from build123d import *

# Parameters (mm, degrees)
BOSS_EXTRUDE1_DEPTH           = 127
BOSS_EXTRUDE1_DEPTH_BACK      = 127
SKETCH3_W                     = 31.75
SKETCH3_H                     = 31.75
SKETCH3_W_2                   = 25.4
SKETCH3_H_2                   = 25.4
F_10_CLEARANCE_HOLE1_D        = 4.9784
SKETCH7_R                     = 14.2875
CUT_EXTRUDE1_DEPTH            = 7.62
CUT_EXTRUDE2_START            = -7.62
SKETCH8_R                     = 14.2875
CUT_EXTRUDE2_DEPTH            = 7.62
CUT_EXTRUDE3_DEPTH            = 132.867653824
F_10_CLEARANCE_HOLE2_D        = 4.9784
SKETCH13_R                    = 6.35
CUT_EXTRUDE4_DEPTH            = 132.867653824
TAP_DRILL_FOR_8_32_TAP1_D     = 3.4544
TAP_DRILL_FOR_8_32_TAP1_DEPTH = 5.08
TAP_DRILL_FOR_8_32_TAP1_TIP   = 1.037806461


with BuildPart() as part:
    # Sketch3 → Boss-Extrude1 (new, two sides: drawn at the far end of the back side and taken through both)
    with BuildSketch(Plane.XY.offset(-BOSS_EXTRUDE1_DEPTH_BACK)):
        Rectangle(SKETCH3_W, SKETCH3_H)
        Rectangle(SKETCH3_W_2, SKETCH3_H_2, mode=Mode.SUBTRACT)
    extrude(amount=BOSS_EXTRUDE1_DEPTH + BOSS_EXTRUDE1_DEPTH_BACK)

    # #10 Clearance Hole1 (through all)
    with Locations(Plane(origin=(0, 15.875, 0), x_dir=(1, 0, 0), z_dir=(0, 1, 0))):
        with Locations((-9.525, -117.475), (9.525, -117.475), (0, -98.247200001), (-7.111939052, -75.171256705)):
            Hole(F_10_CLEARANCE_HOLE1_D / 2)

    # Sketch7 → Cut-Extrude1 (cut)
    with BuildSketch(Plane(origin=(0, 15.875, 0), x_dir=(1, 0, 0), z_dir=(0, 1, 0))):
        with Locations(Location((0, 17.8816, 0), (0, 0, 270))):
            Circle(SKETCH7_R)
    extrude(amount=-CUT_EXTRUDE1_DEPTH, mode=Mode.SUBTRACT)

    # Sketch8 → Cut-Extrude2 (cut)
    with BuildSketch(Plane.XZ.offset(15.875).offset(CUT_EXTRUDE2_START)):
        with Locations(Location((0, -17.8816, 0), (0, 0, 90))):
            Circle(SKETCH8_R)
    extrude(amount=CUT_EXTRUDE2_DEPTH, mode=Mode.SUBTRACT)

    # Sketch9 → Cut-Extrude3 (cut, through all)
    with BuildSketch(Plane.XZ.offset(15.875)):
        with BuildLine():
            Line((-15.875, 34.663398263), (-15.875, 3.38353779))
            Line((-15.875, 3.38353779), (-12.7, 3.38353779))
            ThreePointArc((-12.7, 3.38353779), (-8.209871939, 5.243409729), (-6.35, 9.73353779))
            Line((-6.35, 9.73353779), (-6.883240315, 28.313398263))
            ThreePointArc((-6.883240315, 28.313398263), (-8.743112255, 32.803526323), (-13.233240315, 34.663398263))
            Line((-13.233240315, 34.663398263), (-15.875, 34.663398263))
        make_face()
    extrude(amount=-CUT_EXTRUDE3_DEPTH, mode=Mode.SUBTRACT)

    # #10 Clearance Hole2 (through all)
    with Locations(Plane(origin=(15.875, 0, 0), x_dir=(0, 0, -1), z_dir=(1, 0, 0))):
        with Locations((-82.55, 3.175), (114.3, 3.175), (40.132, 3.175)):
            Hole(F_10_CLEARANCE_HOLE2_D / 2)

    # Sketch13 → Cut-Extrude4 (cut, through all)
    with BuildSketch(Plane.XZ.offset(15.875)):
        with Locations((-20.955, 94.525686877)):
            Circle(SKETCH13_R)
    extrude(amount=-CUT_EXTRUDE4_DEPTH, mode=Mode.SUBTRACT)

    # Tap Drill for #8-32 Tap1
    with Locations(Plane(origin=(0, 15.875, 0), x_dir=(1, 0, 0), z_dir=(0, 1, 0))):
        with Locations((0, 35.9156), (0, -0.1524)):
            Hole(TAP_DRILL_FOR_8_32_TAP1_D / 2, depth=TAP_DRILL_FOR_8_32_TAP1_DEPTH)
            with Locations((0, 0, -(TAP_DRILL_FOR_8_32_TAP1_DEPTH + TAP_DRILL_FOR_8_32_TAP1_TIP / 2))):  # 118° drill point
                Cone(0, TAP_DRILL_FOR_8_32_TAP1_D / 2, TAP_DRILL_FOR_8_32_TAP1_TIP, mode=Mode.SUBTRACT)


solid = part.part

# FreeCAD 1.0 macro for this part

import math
import FreeCAD as App
import Part
import Sketcher
Q = App.Units.Quantity


def add_polygon(sketch, points):
    """Adds a closed chain of lines whose ends are joined by coincident constraints."""
    first, n = sketch.GeometryCount, len(points)
    for a, b in zip(points, points[1:] + points[:1]):
        sketch.addGeometry(Part.LineSegment(App.Vector(*a, 0), App.Vector(*b, 0)), False)
    for i in range(n):
        sketch.addConstraint(Sketcher.Constraint("Coincident", first + i, 2, first + (i + 1) % n, 1))

doc = App.newDocument("Part")
body = doc.addObject("PartDesign::Body", "Body")

sketch1 = doc.addObject("Sketcher::SketchObject", "Sketch")
body.addObject(sketch1)
sketch1.AttachmentSupport = (doc.XY_Plane, [""])
sketch1.MapMode = "FlatFace"
add_polygon(sketch1, [(-16, 16), (-16, -16), (16, -16), (16, 16)])
add_polygon(sketch1, [(13, -13), (-13, -13), (-13, 13), (13, 13)])
sketch1.addConstraint(Sketcher.Constraint("Vertical", 0))
sketch1.addConstraint(Sketcher.Constraint("Horizontal", 1))
sketch1.addConstraint(Sketcher.Constraint("Vertical", 2))
sketch1.addConstraint(Sketcher.Constraint("Horizontal", 3))
sketch1.addConstraint(Sketcher.Constraint("Horizontal", 4))
sketch1.addConstraint(Sketcher.Constraint("Vertical", 5))
sketch1.addConstraint(Sketcher.Constraint("Horizontal", 6))
sketch1.addConstraint(Sketcher.Constraint("Vertical", 7))
sketch1.addConstraint(Sketcher.Constraint("Symmetric", 0, 2, 2, 2, -1, 1))
sketch1.addConstraint(Sketcher.Constraint("Symmetric", 4, 2, 6, 2, -1, 1))
sketch1.addConstraint(Sketcher.Constraint("Equal", 3, 0))
sketch1.addConstraint(Sketcher.Constraint("Equal", 6, 5))
sketch1.addConstraint(Sketcher.Constraint("DistanceX", 4, 2, 4, 1, Q("1 in")))
sketch1.addConstraint(Sketcher.Constraint("DistanceX", 1, 1, 1, 2, Q("1.25 in")))
pad1 = doc.addObject("PartDesign::Pad", "Pad")
body.addObject(pad1)
pad1.Profile = sketch1
pad1.Type = "TwoLengths"
pad1.Length = Q("5 in")
pad1.Length2 = Q("5 in")

sketch2 = doc.addObject("Sketcher::SketchObject", "Sketch001")
body.addObject(sketch2)
sketch2.AttachmentSupport = (doc.XZ_Plane, [""])
sketch2.MapMode = "FlatFace"
sketch2.AttachmentOffset = App.Placement(App.Vector(0, 0, -0.625 * 25.4), App.Rotation())
sketch2.addGeometry(Part.Circle(App.Vector(-9.5, 117.5, 0), App.Vector(0, 0, 1), 2.5), False)
sketch2.addGeometry(Part.Circle(App.Vector(9.5, 117.5, 0), App.Vector(0, 0, 1), 2.5), False)
sketch2.addGeometry(Part.Circle(App.Vector(0, 98.2, 0), App.Vector(0, 0, 1), 2.5), False)
sketch2.addGeometry(Part.Circle(App.Vector(-7.1, 75.2, 0), App.Vector(0, 0, 1), 2.5), False)
sketch2.addConstraint(Sketcher.Constraint("Equal", 0, 1))
sketch2.addConstraint(Sketcher.Constraint("Equal", 1, 2))
sketch2.addConstraint(Sketcher.Constraint("Equal", 2, 3))
sketch2.addConstraint(Sketcher.Constraint("Symmetric", 0, 3, 1, 3, -2))
sketch2.addConstraint(Sketcher.Constraint("PointOnObject", 2, 3, -2))
sketch2.addConstraint(Sketcher.Constraint("Diameter", 0, Q("0.196 in")))
sketch2.addConstraint(Sketcher.Constraint("DistanceX", 0, 3, 1, 3, Q("0.75 in")))
sketch2.addConstraint(Sketcher.Constraint("DistanceY", -1, 1, 0, 3, Q("4.625 in")))
sketch2.addConstraint(Sketcher.Constraint("DistanceY", -1, 1, 2, 3, Q("3.868 in")))
sketch2.addConstraint(Sketcher.Constraint("DistanceX", 3, 3, -1, 1, Q("7.111939 mm")))
sketch2.addConstraint(Sketcher.Constraint("DistanceY", -1, 1, 3, 3, Q("75.171257 mm")))
doc.recompute()
hole = doc.addObject("PartDesign::Hole", "Hole")
body.addObject(hole)
hole.Profile = sketch2
hole.ThreadType = "None"
hole.Diameter = Q("0.196 in")
hole.DepthType = "ThroughAll"
hole.Reversed = True

sketch3 = doc.addObject("Sketcher::SketchObject", "Sketch002")
body.addObject(sketch3)
sketch3.AttachmentSupport = (doc.XZ_Plane, [""])
sketch3.MapMode = "FlatFace"
sketch3.AttachmentOffset = App.Placement(App.Vector(0, 0, -0.625 * 25.4), App.Rotation())
sketch3.addGeometry(Part.Circle(App.Vector(0, -18, 0), App.Vector(0, 0, 1), 14), False)
sketch3.addConstraint(Sketcher.Constraint("PointOnObject", 0, 3, -2))
sketch3.addConstraint(Sketcher.Constraint("Diameter", 0, Q("1.125 in")))
sketch3.addConstraint(Sketcher.Constraint("DistanceY", 0, 3, -1, 1, Q("0.704 in")))
pocket1 = doc.addObject("PartDesign::Pocket", "Pocket")
body.addObject(pocket1)
pocket1.Profile = sketch3
pocket1.Length = Q("0.3 in")
pocket1.Reversed = True

sketch4 = doc.addObject("Sketcher::SketchObject", "Sketch003")
body.addObject(sketch4)
sketch4.AttachmentSupport = (doc.XZ_Plane, [""])
sketch4.MapMode = "FlatFace"
sketch4.AttachmentOffset = App.Placement(App.Vector(0, 0, 0.325 * 25.4), App.Rotation())
sketch4.addGeometry(Part.Circle(App.Vector(0, -18, 0), App.Vector(0, 0, 1), 14), False)
sketch4.addConstraint(Sketcher.Constraint("PointOnObject", 0, 3, -2))
sketch4.addConstraint(Sketcher.Constraint("Diameter", 0, Q("1.125 in")))
sketch4.addConstraint(Sketcher.Constraint("DistanceY", 0, 3, -1, 1, Q("0.704 in")))
pocket2 = doc.addObject("PartDesign::Pocket", "Pocket001")
body.addObject(pocket2)
pocket2.Profile = sketch4
pocket2.Length = Q("0.3 in")
pocket2.Reversed = True

sketch5 = doc.addObject("Sketcher::SketchObject", "Sketch004")
body.addObject(sketch5)
sketch5.AttachmentSupport = (doc.XZ_Plane, [""])
sketch5.MapMode = "FlatFace"
sketch5.AttachmentOffset = App.Placement(App.Vector(0, 0, 0.625 * 25.4), App.Rotation())
sketch5.addGeometry(Part.LineSegment(App.Vector(-15.9, 34.7, 0), App.Vector(-15.9, 3.4, 0)), False)
sketch5.addGeometry(Part.LineSegment(App.Vector(-15.9, 3.4, 0), App.Vector(-12.7, 3.4, 0)), False)
sketch5.addGeometry(Part.ArcOfCircle(Part.Circle(App.Vector(-12.7, 9.7, 0), App.Vector(0, 0, 1), 6.3), math.radians(-90), math.radians(0)), False)
sketch5.addGeometry(Part.LineSegment(App.Vector(-6.3, 9.7, 0), App.Vector(-6.9, 28.3, 0)), False)
sketch5.addGeometry(Part.ArcOfCircle(Part.Circle(App.Vector(-13.2, 28.3, 0), App.Vector(0, 0, 1), 6.4), math.radians(0), math.radians(90)), False)
sketch5.addGeometry(Part.LineSegment(App.Vector(-13.2, 34.7, 0), App.Vector(-15.9, 34.7, 0)), False)
sketch5.addConstraint(Sketcher.Constraint("Coincident", 0, 2, 1, 1))
sketch5.addConstraint(Sketcher.Constraint("Tangent", 1, 2, 2, 1))
sketch5.addConstraint(Sketcher.Constraint("Coincident", 2, 2, 3, 1))
sketch5.addConstraint(Sketcher.Constraint("Coincident", 3, 2, 4, 1))
sketch5.addConstraint(Sketcher.Constraint("Tangent", 4, 2, 5, 1))
sketch5.addConstraint(Sketcher.Constraint("Coincident", 5, 2, 0, 1))
sketch5.addConstraint(Sketcher.Constraint("Vertical", 0))
sketch5.addConstraint(Sketcher.Constraint("Horizontal", 1))
sketch5.addConstraint(Sketcher.Constraint("Horizontal", 5))
sketch5.addConstraint(Sketcher.Constraint("Equal", 2, 4))
sketch5.addConstraint(Sketcher.Constraint("Horizontal", 4, 3, 3, 2))
sketch5.addConstraint(Sketcher.Constraint("Radius", 2, Q("0.25 in")))
sketch5.addConstraint(Sketcher.Constraint("DistanceX", 2, 3, -1, 1, Q("0.5 in")))
sketch5.addConstraint(Sketcher.Constraint("DistanceX", 1, 1, 1, 2, Q("0.125 in")))
sketch5.addConstraint(Sketcher.Constraint("DistanceY", 1, 2, 2, 2, Q("0.25 in")))
sketch5.addConstraint(Sketcher.Constraint("DistanceX", 5, 2, 5, 1, Q("2.64176 mm")))
sketch5.addConstraint(Sketcher.Constraint("DistanceY", 0, 2, 0, 1, Q("31.27986 mm")))
sketch5.addConstraint(Sketcher.Constraint("DistanceY", -1, 1, 4, 3, Q("28.313398 mm")))
pocket3 = doc.addObject("PartDesign::Pocket", "Pocket002")
body.addObject(pocket3)
pocket3.Profile = sketch5
pocket3.Type = "ThroughAll"

sketch6 = doc.addObject("Sketcher::SketchObject", "Sketch005")
body.addObject(sketch6)
sketch6.AttachmentSupport = (doc.YZ_Plane, [""])
sketch6.MapMode = "FlatFace"
sketch6.AttachmentOffset = App.Placement(App.Vector(0, 0, 0.625 * 25.4), App.Rotation())
sketch6.addGeometry(Part.Circle(App.Vector(3.2, 82.5, 0), App.Vector(0, 0, 1), 2.5), False)
sketch6.addGeometry(Part.Circle(App.Vector(3.2, -114.3, 0), App.Vector(0, 0, 1), 2.5), False)
sketch6.addGeometry(Part.Circle(App.Vector(3.2, -40.1, 0), App.Vector(0, 0, 1), 2.5), False)
sketch6.addConstraint(Sketcher.Constraint("Equal", 0, 1))
sketch6.addConstraint(Sketcher.Constraint("Equal", 1, 2))
sketch6.addConstraint(Sketcher.Constraint("Vertical", 0, 3, 1, 3))
sketch6.addConstraint(Sketcher.Constraint("Vertical", 1, 3, 2, 3))
sketch6.addConstraint(Sketcher.Constraint("Diameter", 0, Q("0.196 in")))
sketch6.addConstraint(Sketcher.Constraint("DistanceY", 1, 3, -1, 1, Q("4.5 in")))
sketch6.addConstraint(Sketcher.Constraint("DistanceY", -1, 1, 0, 3, Q("3.25 in")))
sketch6.addConstraint(Sketcher.Constraint("DistanceY", 2, 3, -1, 1, Q("1.58 in")))
sketch6.addConstraint(Sketcher.Constraint("DistanceX", -1, 1, 0, 3, Q("0.125 in")))
doc.recompute()
hole2 = doc.addObject("PartDesign::Hole", "Hole001")
body.addObject(hole2)
hole2.Profile = sketch6
hole2.ThreadType = "None"
hole2.Diameter = Q("0.196 in")
hole2.DepthType = "ThroughAll"

sketch7 = doc.addObject("Sketcher::SketchObject", "Sketch006")
body.addObject(sketch7)
sketch7.AttachmentSupport = (doc.XZ_Plane, [""])
sketch7.MapMode = "FlatFace"
sketch7.AttachmentOffset = App.Placement(App.Vector(0, 0, 0.625 * 25.4), App.Rotation())
sketch7.addGeometry(Part.Circle(App.Vector(-21, 95, 0), App.Vector(0, 0, 1), 6), False)
sketch7.addConstraint(Sketcher.Constraint("Diameter", 0, Q("0.5 in")))
sketch7.addConstraint(Sketcher.Constraint("DistanceX", 0, 3, -1, 1, Q("0.825 in")))
sketch7.addConstraint(Sketcher.Constraint("DistanceY", -1, 1, 0, 3, Q("94.525687 mm")))
pocket4 = doc.addObject("PartDesign::Pocket", "Pocket003")
body.addObject(pocket4)
pocket4.Profile = sketch7
pocket4.Type = "ThroughAll"

sketch8 = doc.addObject("Sketcher::SketchObject", "Sketch007")
body.addObject(sketch8)
sketch8.AttachmentSupport = (doc.XZ_Plane, [""])
sketch8.MapMode = "FlatFace"
sketch8.AttachmentOffset = App.Placement(App.Vector(0, 0, -0.625 * 25.4), App.Rotation())
sketch8.addGeometry(Part.Circle(App.Vector(0, -35.9, 0), App.Vector(0, 0, 1), 1.7), False)
sketch8.addGeometry(Part.Circle(App.Vector(0, 0.2, 0), App.Vector(0, 0, 1), 1.7), False)
sketch8.addConstraint(Sketcher.Constraint("Equal", 0, 1))
sketch8.addConstraint(Sketcher.Constraint("PointOnObject", 0, 3, -2))
sketch8.addConstraint(Sketcher.Constraint("PointOnObject", 1, 3, -2))
sketch8.addConstraint(Sketcher.Constraint("Diameter", 0, Q("0.136 in")))
sketch8.addConstraint(Sketcher.Constraint("DistanceY", 0, 3, 1, 3, Q("1.42 in")))
sketch8.addConstraint(Sketcher.Constraint("DistanceY", 0, 3, -1, 1, Q("1.414 in")))
doc.recompute()
hole3 = doc.addObject("PartDesign::Hole", "Hole002")
body.addObject(hole3)
hole3.Profile = sketch8
hole3.ThreadType = "None"
hole3.Diameter = Q("0.136 in")
hole3.DepthType = "Dimension"
hole3.Depth = Q("0.2 in")
hole3.DrillPoint = "Angled"
hole3.DrillPointAngle = 118
hole3.Reversed = True

doc.recompute()
